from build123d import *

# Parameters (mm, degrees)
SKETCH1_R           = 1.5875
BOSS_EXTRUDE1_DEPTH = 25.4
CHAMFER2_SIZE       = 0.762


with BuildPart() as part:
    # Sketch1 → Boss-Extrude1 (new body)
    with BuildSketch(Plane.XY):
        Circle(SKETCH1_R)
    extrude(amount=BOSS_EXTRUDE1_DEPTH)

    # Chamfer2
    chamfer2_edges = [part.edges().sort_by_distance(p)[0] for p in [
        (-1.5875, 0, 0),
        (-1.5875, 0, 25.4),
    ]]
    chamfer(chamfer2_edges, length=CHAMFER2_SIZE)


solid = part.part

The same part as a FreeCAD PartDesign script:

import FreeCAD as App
import Part
import Sketcher

V = App.Vector
Q = App.Units.Quantity


def edges_at(feature, points):
    """Names of the edges that pass closest to the given points."""
    edges = feature.Shape.Edges
    near = lambda p: min(range(len(edges)), key=lambda i: edges[i].distToShape(Part.Vertex(*p))[0])
    return sorted({f"Edge{near(p) + 1}" for p in points})

doc = App.newDocument("Part")
body = doc.addObject("PartDesign::Body", "Body")

sketch1 = body.newObject("Sketcher::SketchObject", "Sketch")
sketch1.AttachmentSupport = (doc.getObject("XY_Plane"), [""])
sketch1.MapMode = "FlatFace"
sketch1.addGeometry(Part.Circle(V(0, 0, 0), V(0, 0, 1), 1.6), False)
sketch1.addConstraint([
    Sketcher.Constraint("Coincident", 0, 3, -1, 1),
    Sketcher.Constraint("Diameter", 0, Q("0.125 in")),
])
pad1 = body.newObject("PartDesign::Pad", "Pad")
pad1.Profile = sketch1
pad1.Length = Q("1 in")
doc.recompute()

chamfer = body.newObject("PartDesign::Chamfer", "Chamfer")
chamfer.Base = (pad1, edges_at(pad1, [(-1.587, 0, 0), (-1.587, 0, 25.4)]))
chamfer.Size = Q("0.03 in")

doc.recompute()
